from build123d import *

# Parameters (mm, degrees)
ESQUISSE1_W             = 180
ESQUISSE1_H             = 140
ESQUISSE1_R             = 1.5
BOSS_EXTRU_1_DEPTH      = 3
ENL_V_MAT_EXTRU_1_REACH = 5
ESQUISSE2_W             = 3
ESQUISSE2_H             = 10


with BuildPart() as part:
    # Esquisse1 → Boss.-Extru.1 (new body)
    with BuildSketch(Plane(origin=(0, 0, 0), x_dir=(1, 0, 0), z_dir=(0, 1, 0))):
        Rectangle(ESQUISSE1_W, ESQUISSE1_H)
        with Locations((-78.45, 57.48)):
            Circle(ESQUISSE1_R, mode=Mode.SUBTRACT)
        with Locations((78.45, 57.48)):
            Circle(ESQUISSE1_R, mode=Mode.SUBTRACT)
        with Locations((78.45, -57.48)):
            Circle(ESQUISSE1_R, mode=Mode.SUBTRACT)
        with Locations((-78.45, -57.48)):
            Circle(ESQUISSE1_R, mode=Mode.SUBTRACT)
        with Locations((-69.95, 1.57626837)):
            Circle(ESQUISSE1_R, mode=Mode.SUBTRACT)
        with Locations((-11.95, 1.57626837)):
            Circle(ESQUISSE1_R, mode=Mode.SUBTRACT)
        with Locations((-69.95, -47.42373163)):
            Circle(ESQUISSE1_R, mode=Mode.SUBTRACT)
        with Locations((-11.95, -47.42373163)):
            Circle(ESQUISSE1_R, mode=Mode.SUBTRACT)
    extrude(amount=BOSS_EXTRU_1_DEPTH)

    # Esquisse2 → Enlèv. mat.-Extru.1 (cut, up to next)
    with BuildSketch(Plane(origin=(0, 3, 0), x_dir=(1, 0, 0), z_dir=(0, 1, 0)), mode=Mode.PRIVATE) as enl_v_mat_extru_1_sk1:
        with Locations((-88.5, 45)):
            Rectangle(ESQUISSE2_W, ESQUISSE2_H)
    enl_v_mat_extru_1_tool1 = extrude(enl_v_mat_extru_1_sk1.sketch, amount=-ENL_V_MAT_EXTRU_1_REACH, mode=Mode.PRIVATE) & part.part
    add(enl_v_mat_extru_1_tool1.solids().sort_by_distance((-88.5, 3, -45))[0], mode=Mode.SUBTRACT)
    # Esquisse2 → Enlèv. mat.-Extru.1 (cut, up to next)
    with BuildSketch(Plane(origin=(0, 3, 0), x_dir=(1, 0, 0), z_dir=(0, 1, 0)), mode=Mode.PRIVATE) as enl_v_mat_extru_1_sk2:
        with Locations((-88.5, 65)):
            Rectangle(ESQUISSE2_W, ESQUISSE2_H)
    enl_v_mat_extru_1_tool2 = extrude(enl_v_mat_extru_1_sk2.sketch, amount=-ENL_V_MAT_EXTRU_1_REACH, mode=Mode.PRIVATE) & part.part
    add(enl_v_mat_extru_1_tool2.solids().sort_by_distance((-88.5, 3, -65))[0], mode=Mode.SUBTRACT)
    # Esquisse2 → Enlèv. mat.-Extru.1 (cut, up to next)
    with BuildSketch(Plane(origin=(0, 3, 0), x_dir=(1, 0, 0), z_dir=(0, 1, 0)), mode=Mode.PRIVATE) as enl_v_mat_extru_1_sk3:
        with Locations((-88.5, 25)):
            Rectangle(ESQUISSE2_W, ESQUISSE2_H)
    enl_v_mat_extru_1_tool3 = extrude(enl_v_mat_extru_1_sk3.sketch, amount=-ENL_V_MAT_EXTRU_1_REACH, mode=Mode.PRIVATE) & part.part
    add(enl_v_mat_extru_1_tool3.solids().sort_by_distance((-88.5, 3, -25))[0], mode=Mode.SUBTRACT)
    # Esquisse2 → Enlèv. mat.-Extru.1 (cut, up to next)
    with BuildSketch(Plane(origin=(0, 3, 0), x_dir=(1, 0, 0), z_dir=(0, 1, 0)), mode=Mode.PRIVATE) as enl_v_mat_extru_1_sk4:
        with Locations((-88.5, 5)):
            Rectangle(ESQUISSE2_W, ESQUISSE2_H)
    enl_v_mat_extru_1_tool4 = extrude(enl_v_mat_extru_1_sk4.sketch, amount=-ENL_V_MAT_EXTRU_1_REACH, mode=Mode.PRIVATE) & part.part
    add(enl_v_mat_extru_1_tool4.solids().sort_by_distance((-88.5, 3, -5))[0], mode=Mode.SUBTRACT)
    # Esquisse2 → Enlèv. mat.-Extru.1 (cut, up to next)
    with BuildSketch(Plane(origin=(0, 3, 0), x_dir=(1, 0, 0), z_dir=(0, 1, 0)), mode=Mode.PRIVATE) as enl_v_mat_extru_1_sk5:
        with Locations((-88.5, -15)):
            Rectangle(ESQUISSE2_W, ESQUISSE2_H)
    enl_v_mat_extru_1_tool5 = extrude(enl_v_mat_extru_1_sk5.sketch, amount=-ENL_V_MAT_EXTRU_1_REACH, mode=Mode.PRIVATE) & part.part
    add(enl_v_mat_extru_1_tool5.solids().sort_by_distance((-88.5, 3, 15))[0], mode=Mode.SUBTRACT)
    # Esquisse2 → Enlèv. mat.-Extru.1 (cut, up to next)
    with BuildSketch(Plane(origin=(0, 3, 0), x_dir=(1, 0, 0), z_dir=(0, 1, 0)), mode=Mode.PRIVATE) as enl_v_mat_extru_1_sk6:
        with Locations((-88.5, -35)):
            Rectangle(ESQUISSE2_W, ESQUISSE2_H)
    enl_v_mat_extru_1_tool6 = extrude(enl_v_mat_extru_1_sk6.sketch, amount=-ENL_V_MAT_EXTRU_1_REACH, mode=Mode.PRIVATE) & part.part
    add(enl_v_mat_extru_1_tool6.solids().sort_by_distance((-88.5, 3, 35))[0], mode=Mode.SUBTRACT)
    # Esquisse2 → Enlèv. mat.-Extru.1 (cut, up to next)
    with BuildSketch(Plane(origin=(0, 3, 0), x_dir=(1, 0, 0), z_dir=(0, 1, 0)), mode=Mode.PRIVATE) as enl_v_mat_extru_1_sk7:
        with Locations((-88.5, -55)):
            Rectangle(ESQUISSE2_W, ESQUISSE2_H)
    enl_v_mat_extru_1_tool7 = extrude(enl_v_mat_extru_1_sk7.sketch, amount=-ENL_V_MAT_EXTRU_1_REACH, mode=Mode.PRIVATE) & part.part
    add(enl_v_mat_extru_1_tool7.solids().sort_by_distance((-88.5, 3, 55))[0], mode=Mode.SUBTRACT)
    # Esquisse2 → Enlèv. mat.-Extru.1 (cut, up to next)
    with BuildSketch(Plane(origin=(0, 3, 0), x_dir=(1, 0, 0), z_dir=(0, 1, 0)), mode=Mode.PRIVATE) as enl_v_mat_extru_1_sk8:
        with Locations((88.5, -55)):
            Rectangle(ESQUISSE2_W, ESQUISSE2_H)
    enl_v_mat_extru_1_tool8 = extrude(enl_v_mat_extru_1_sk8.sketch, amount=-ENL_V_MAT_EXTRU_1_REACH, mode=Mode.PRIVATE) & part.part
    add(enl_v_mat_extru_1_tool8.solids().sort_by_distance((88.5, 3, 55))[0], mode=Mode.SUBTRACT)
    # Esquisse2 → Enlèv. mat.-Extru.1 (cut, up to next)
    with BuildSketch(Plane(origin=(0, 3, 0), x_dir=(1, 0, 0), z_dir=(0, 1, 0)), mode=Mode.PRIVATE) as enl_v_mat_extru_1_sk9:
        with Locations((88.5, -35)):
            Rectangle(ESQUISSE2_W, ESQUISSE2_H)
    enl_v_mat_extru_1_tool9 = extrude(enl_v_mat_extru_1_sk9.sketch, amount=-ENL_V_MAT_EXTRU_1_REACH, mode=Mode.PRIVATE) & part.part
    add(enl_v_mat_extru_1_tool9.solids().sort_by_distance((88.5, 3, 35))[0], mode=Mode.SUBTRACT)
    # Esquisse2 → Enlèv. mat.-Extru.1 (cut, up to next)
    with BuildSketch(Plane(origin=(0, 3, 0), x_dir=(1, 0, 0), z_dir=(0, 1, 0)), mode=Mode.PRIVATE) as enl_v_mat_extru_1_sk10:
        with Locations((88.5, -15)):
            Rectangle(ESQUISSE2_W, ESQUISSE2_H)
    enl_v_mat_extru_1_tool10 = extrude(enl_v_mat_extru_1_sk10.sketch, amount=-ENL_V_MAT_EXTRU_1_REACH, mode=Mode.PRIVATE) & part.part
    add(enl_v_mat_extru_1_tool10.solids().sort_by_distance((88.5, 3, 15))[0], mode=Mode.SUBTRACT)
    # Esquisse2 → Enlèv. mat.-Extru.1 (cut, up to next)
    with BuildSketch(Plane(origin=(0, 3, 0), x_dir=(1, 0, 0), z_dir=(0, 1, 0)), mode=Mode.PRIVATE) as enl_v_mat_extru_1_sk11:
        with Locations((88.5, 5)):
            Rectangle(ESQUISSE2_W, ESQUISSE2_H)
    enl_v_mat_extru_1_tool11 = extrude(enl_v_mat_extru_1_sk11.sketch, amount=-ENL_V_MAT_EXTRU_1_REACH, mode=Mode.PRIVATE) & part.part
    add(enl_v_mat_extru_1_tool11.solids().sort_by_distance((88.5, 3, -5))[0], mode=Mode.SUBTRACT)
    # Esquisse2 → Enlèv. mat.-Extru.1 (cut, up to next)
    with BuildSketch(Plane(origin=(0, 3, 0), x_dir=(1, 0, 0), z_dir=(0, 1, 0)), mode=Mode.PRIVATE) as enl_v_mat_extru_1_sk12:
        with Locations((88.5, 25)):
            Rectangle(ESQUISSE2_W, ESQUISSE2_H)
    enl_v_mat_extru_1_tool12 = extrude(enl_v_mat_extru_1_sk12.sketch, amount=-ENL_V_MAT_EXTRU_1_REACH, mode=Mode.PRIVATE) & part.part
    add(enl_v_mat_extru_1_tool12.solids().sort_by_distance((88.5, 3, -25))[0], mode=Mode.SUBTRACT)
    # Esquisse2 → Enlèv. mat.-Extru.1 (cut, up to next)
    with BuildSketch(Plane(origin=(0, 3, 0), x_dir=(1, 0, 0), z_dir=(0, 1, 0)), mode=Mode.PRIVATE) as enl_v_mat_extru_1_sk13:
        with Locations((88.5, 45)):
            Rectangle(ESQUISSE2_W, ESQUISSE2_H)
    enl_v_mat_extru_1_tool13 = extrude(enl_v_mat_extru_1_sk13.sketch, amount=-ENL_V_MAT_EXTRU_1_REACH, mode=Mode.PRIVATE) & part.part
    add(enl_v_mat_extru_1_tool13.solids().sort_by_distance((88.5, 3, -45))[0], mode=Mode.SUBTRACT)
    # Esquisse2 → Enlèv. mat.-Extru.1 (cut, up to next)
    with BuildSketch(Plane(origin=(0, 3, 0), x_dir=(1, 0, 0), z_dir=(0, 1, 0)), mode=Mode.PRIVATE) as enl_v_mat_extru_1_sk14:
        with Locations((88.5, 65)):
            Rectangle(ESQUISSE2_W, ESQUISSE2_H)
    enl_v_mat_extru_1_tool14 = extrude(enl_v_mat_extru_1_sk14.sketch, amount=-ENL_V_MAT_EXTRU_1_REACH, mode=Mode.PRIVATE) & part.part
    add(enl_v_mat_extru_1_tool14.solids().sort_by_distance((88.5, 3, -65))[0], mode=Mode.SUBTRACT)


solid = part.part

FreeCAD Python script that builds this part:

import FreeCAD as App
import Part
import Sketcher
from FreeCAD import Vector
Q = App.Units.Quantity

doc = App.newDocument("Part")
body = doc.addObject("PartDesign::Body", "Body")

sketch1 = body.newObject("Sketcher::SketchObject", "Sketch")
sketch1.AttachmentSupport = (doc.getObject("XZ_Plane"), [""])
sketch1.MapMode = "FlatFace"
sketch1.addGeometry([
    Part.LineSegment(Vector(-90, -70, 0), Vector(-90, 70, 0)),
    Part.LineSegment(Vector(-90, 70, 0), Vector(90, 70, 0)),
    Part.LineSegment(Vector(90, 70, 0), Vector(90, -70, 0)),
    Part.LineSegment(Vector(90, -70, 0), Vector(-90, -70, 0)),
    Part.Circle(Vector(-78.5, 57.5, 0), Vector(0, 0, 1), 1.5),
    Part.Circle(Vector(-70, 47.4, 0), Vector(0, 0, 1), 1.5),
    Part.Circle(Vector(-11.9, 47.4, 0), Vector(0, 0, 1), 1.5),
    Part.Circle(Vector(78.5, 57.5, 0), Vector(0, 0, 1), 1.5),
    Part.Circle(Vector(-70, -1.6, 0), Vector(0, 0, 1), 1.5),
    Part.Circle(Vector(-11.9, -1.6, 0), Vector(0, 0, 1), 1.5),
    Part.Circle(Vector(-78.5, -57.5, 0), Vector(0, 0, 1), 1.5),
    Part.Circle(Vector(78.5, -57.5, 0), Vector(0, 0, 1), 1.5),
], False)
sketch1.addConstraint([
    Sketcher.Constraint("Coincident", 0, 2, 1, 1),
    Sketcher.Constraint("Coincident", 1, 2, 2, 1),
    Sketcher.Constraint("Coincident", 2, 2, 3, 1),
    Sketcher.Constraint("Coincident", 3, 2, 0, 1),
    Sketcher.Constraint("Vertical", 0),
    Sketcher.Constraint("Horizontal", 1),
    Sketcher.Constraint("Vertical", 2),
    Sketcher.Constraint("Horizontal", 3),
    Sketcher.Constraint("Equal", 4, 5),
    Sketcher.Constraint("Equal", 5, 6),
    Sketcher.Constraint("Equal", 6, 7),
    Sketcher.Constraint("Equal", 7, 8),
    Sketcher.Constraint("Equal", 8, 9),
    Sketcher.Constraint("Equal", 9, 10),
    Sketcher.Constraint("Equal", 10, 11),
    Sketcher.Constraint("Symmetric", 7, 3, 10, 3, -1, 1),
    Sketcher.Constraint("Symmetric", 4, 3, 11, 3, -1, 1),
    Sketcher.Constraint("Symmetric", 0, 2, 2, 2, -1, 1),
    Sketcher.Constraint("Symmetric", 4, 3, 7, 3, -2),
    Sketcher.Constraint("Horizontal", 5, 3, 6, 3),
    Sketcher.Constraint("Horizontal", 8, 3, 9, 3),
    Sketcher.Constraint("Vertical", 5, 3, 8, 3),
    Sketcher.Constraint("Vertical", 6, 3, 9, 3),
    Sketcher.Constraint("Diameter", 4, Q("3 mm")),
    Sketcher.Constraint("DistanceX", 1, 1, 1, 2, Q("180 mm")),
    Sketcher.Constraint("DistanceY", 0, 1, 0, 2, Q("140 mm")),
    Sketcher.Constraint("DistanceX", 5, 3, 6, 3, Q("58 mm")),
    Sketcher.Constraint("DistanceY", 8, 3, 5, 3, Q("49 mm")),
    Sketcher.Constraint("DistanceX", 4, 3, 5, 3, Q("8.5 mm")),
    Sketcher.Constraint("DistanceX", 6, 3, 7, 3, Q("90.4 mm")),
    Sketcher.Constraint("DistanceY", -1, 1, 4, 3, Q("57.48 mm")),
    Sketcher.Constraint("DistanceY", -1, 1, 5, 3, Q("47.423732 mm")),
])
pad1 = body.newObject("PartDesign::Pad", "Pad")
pad1.Profile = sketch1
pad1.Length = 3
pad1.Reversed = True

sketch2 = body.newObject("Sketcher::SketchObject", "Sketch001")
sketch2.AttachmentSupport = (doc.getObject("XZ_Plane"), [""])
sketch2.MapMode = "FlatFace"
sketch2.AttachmentOffset = App.Placement(Vector(0, 0, -3), App.Rotation())
sketch2.addGeometry([
    Part.LineSegment(Vector(-90, -50, 0), Vector(-90, -40, 0)),
    Part.LineSegment(Vector(-90, -40, 0), Vector(-87, -40, 0)),
    Part.LineSegment(Vector(-87, -40, 0), Vector(-87, -50, 0)),
    Part.LineSegment(Vector(-87, -50, 0), Vector(-90, -50, 0)),
], False)
sketch2.addConstraint([
    Sketcher.Constraint("Coincident", 0, 2, 1, 1),
    Sketcher.Constraint("Coincident", 1, 2, 2, 1),
    Sketcher.Constraint("Coincident", 2, 2, 3, 1),
    Sketcher.Constraint("Coincident", 3, 2, 0, 1),
    Sketcher.Constraint("Vertical", 0),
    Sketcher.Constraint("Horizontal", 1),
    Sketcher.Constraint("Vertical", 2),
    Sketcher.Constraint("Horizontal", 3),
    Sketcher.Constraint("DistanceX", 1, 1, 1, 2, Q("3 mm")),
    Sketcher.Constraint("DistanceY", 0, 1, 0, 2, Q("10 mm")),
    Sketcher.Constraint("DistanceX", 0, 2, -1, 1, Q("90 mm")),
    Sketcher.Constraint("DistanceY", 0, 2, -1, 1, Q("40 mm")),
])
pocket1 = body.newObject("PartDesign::Pocket", "Pocket")
pocket1.Profile = sketch2
pocket1.Type = "UpToFirst"
pocket1.Reversed = True

sketch3 = body.newObject("Sketcher::SketchObject", "Sketch002")
sketch3.AttachmentSupport = (doc.getObject("XZ_Plane"), [""])
sketch3.MapMode = "FlatFace"
sketch3.AttachmentOffset = App.Placement(Vector(0, 0, -3), App.Rotation())
sketch3.addGeometry([
    Part.LineSegment(Vector(-90, -70, 0), Vector(-90, -60, 0)),
    Part.LineSegment(Vector(-90, -60, 0), Vector(-87, -60, 0)),
    Part.LineSegment(Vector(-87, -60, 0), Vector(-87, -70, 0)),
    Part.LineSegment(Vector(-87, -70, 0), Vector(-90, -70, 0)),
], False)
sketch3.addConstraint([
    Sketcher.Constraint("Coincident", 0, 2, 1, 1),
    Sketcher.Constraint("Coincident", 1, 2, 2, 1),
    Sketcher.Constraint("Coincident", 2, 2, 3, 1),
    Sketcher.Constraint("Coincident", 3, 2, 0, 1),
    Sketcher.Constraint("Vertical", 0),
    Sketcher.Constraint("Horizontal", 1),
    Sketcher.Constraint("Vertical", 2),
    Sketcher.Constraint("Horizontal", 3),
    Sketcher.Constraint("DistanceX", 1, 1, 1, 2, Q("3 mm")),
    Sketcher.Constraint("DistanceY", 0, 1, 0, 2, Q("10 mm")),
    Sketcher.Constraint("DistanceX", 0, 2, -1, 1, Q("90 mm")),
    Sketcher.Constraint("DistanceY", 0, 2, -1, 1, Q("60 mm")),
])
pocket2 = body.newObject("PartDesign::Pocket", "Pocket001")
pocket2.Profile = sketch3
pocket2.Type = "UpToFirst"
pocket2.Reversed = True

sketch4 = body.newObject("Sketcher::SketchObject", "Sketch003")
sketch4.AttachmentSupport = (doc.getObject("XZ_Plane"), [""])
sketch4.MapMode = "FlatFace"
sketch4.AttachmentOffset = App.Placement(Vector(0, 0, -3), App.Rotation())
sketch4.addGeometry([
    Part.LineSegment(Vector(-90, -30, 0), Vector(-90, -20, 0)),
    Part.LineSegment(Vector(-90, -20, 0), Vector(-87, -20, 0)),
    Part.LineSegment(Vector(-87, -20, 0), Vector(-87, -30, 0)),
    Part.LineSegment(Vector(-87, -30, 0), Vector(-90, -30, 0)),
], False)
sketch4.addConstraint([
    Sketcher.Constraint("Coincident", 0, 2, 1, 1),
    Sketcher.Constraint("Coincident", 1, 2, 2, 1),
    Sketcher.Constraint("Coincident", 2, 2, 3, 1),
    Sketcher.Constraint("Coincident", 3, 2, 0, 1),
    Sketcher.Constraint("Vertical", 0),
    Sketcher.Constraint("Horizontal", 1),
    Sketcher.Constraint("Vertical", 2),
    Sketcher.Constraint("Horizontal", 3),
    Sketcher.Constraint("DistanceX", 1, 1, 1, 2, Q("3 mm")),
    Sketcher.Constraint("DistanceY", 0, 1, 0, 2, Q("10 mm")),
    Sketcher.Constraint("DistanceX", 0, 2, -1, 1, Q("90 mm")),
    Sketcher.Constraint("DistanceY", 0, 2, -1, 1, Q("20 mm")),
])
pocket3 = body.newObject("PartDesign::Pocket", "Pocket002")
pocket3.Profile = sketch4
pocket3.Type = "UpToFirst"
pocket3.Reversed = True

sketch5 = body.newObject("Sketcher::SketchObject", "Sketch004")
sketch5.AttachmentSupport = (doc.getObject("XZ_Plane"), [""])
sketch5.MapMode = "FlatFace"
sketch5.AttachmentOffset = App.Placement(Vector(0, 0, -3), App.Rotation())
sketch5.addGeometry([
    Part.LineSegment(Vector(-90, -10, 0), Vector(-90, 0, 0)),
    Part.LineSegment(Vector(-90, 0, 0), Vector(-87, 0, 0)),
    Part.LineSegment(Vector(-87, 0, 0), Vector(-87, -10, 0)),
    Part.LineSegment(Vector(-87, -10, 0), Vector(-90, -10, 0)),
], False)
sketch5.addConstraint([
    Sketcher.Constraint("Coincident", 0, 2, 1, 1),
    Sketcher.Constraint("Coincident", 1, 2, 2, 1),
    Sketcher.Constraint("Coincident", 2, 2, 3, 1),
    Sketcher.Constraint("Coincident", 3, 2, 0, 1),
    Sketcher.Constraint("Vertical", 0),
    Sketcher.Constraint("Horizontal", 1),
    Sketcher.Constraint("Vertical", 2),
    Sketcher.Constraint("Horizontal", 3),
    Sketcher.Constraint("PointOnObject", 0, 2, -1),
    Sketcher.Constraint("DistanceX", 1, 1, 1, 2, Q("3 mm")),
    Sketcher.Constraint("DistanceY", 0, 1, 0, 2, Q("10 mm")),
    Sketcher.Constraint("DistanceX", 0, 2, -1, 1, Q("90 mm")),
])
pocket4 = body.newObject("PartDesign::Pocket", "Pocket003")
pocket4.Profile = sketch5
pocket4.Type = "UpToFirst"
pocket4.Reversed = True

sketch6 = body.newObject("Sketcher::SketchObject", "Sketch005")
sketch6.AttachmentSupport = (doc.getObject("XZ_Plane"), [""])
sketch6.MapMode = "FlatFace"
sketch6.AttachmentOffset = App.Placement(Vector(0, 0, -3), App.Rotation())
sketch6.addGeometry([
    Part.LineSegment(Vector(-90, 10, 0), Vector(-90, 20, 0)),
    Part.LineSegment(Vector(-90, 20, 0), Vector(-87, 20, 0)),
    Part.LineSegment(Vector(-87, 20, 0), Vector(-87, 10, 0)),
    Part.LineSegment(Vector(-87, 10, 0), Vector(-90, 10, 0)),
], False)
sketch6.addConstraint([
    Sketcher.Constraint("Coincident", 0, 2, 1, 1),
    Sketcher.Constraint("Coincident", 1, 2, 2, 1),
    Sketcher.Constraint("Coincident", 2, 2, 3, 1),
    Sketcher.Constraint("Coincident", 3, 2, 0, 1),
    Sketcher.Constraint("Vertical", 0),
    Sketcher.Constraint("Horizontal", 1),
    Sketcher.Constraint("Vertical", 2),
    Sketcher.Constraint("Horizontal", 3),
    Sketcher.Constraint("DistanceX", 1, 1, 1, 2, Q("3 mm")),
    Sketcher.Constraint("DistanceY", 0, 1, 0, 2, Q("10 mm")),
    Sketcher.Constraint("DistanceX", 0, 2, -1, 1, Q("90 mm")),
    Sketcher.Constraint("DistanceY", -1, 1, 0, 2, Q("20 mm")),
])
pocket5 = body.newObject("PartDesign::Pocket", "Pocket004")
pocket5.Profile = sketch6
pocket5.Type = "UpToFirst"
pocket5.Reversed = True

sketch7 = body.newObject("Sketcher::SketchObject", "Sketch006")
sketch7.AttachmentSupport = (doc.getObject("XZ_Plane"), [""])
sketch7.MapMode = "FlatFace"
sketch7.AttachmentOffset = App.Placement(Vector(0, 0, -3), App.Rotation())
sketch7.addGeometry([
    Part.LineSegment(Vector(-90, 30, 0), Vector(-90, 40, 0)),
    Part.LineSegment(Vector(-90, 40, 0), Vector(-87, 40, 0)),
    Part.LineSegment(Vector(-87, 40, 0), Vector(-87, 30, 0)),
    Part.LineSegment(Vector(-87, 30, 0), Vector(-90, 30, 0)),
], False)
sketch7.addConstraint([
    Sketcher.Constraint("Coincident", 0, 2, 1, 1),
    Sketcher.Constraint("Coincident", 1, 2, 2, 1),
    Sketcher.Constraint("Coincident", 2, 2, 3, 1),
    Sketcher.Constraint("Coincident", 3, 2, 0, 1),
    Sketcher.Constraint("Vertical", 0),
    Sketcher.Constraint("Horizontal", 1),
    Sketcher.Constraint("Vertical", 2),
    Sketcher.Constraint("Horizontal", 3),
    Sketcher.Constraint("DistanceX", 1, 1, 1, 2, Q("3 mm")),
    Sketcher.Constraint("DistanceY", 0, 1, 0, 2, Q("10 mm")),
    Sketcher.Constraint("DistanceX", 0, 2, -1, 1, Q("90 mm")),
    Sketcher.Constraint("DistanceY", -1, 1, 0, 2, Q("40 mm")),
])
pocket6 = body.newObject("PartDesign::Pocket", "Pocket005")
pocket6.Profile = sketch7
pocket6.Type = "UpToFirst"
pocket6.Reversed = True

sketch8 = body.newObject("Sketcher::SketchObject", "Sketch007")
sketch8.AttachmentSupport = (doc.getObject("XZ_Plane"), [""])
sketch8.MapMode = "FlatFace"
sketch8.AttachmentOffset = App.Placement(Vector(0, 0, -3), App.Rotation())
sketch8.addGeometry([
    Part.LineSegment(Vector(-90, 50, 0), Vector(-90, 60, 0)),
    Part.LineSegment(Vector(-90, 60, 0), Vector(-87, 60, 0)),
    Part.LineSegment(Vector(-87, 60, 0), Vector(-87, 50, 0)),
    Part.LineSegment(Vector(-87, 50, 0), Vector(-90, 50, 0)),
], False)
sketch8.addConstraint([
    Sketcher.Constraint("Coincident", 0, 2, 1, 1),
    Sketcher.Constraint("Coincident", 1, 2, 2, 1),
    Sketcher.Constraint("Coincident", 2, 2, 3, 1),
    Sketcher.Constraint("Coincident", 3, 2, 0, 1),
    Sketcher.Constraint("Vertical", 0),
    Sketcher.Constraint("Horizontal", 1),
    Sketcher.Constraint("Vertical", 2),
    Sketcher.Constraint("Horizontal", 3),
    Sketcher.Constraint("DistanceX", 1, 1, 1, 2, Q("3 mm")),
    Sketcher.Constraint("DistanceY", 0, 1, 0, 2, Q("10 mm")),
    Sketcher.Constraint("DistanceX", 0, 2, -1, 1, Q("90 mm")),
    Sketcher.Constraint("DistanceY", -1, 1, 0, 2, Q("60 mm")),
])
pocket7 = body.newObject("PartDesign::Pocket", "Pocket006")
pocket7.Profile = sketch8
pocket7.Type = "UpToFirst"
pocket7.Reversed = True

sketch9 = body.newObject("Sketcher::SketchObject", "Sketch008")
sketch9.AttachmentSupport = (doc.getObject("XZ_Plane"), [""])
sketch9.MapMode = "FlatFace"
sketch9.AttachmentOffset = App.Placement(Vector(0, 0, -3), App.Rotation())
sketch9.addGeometry([
    Part.LineSegment(Vector(87, 50, 0), Vector(87, 60, 0)),
    Part.LineSegment(Vector(87, 60, 0), Vector(90, 60, 0)),
    Part.LineSegment(Vector(90, 60, 0), Vector(90, 50, 0)),
    Part.LineSegment(Vector(90, 50, 0), Vector(87, 50, 0)),
], False)
sketch9.addConstraint([
    Sketcher.Constraint("Coincident", 0, 2, 1, 1),
    Sketcher.Constraint("Coincident", 1, 2, 2, 1),
    Sketcher.Constraint("Coincident", 2, 2, 3, 1),
    Sketcher.Constraint("Coincident", 3, 2, 0, 1),
    Sketcher.Constraint("Vertical", 0),
    Sketcher.Constraint("Horizontal", 1),
    Sketcher.Constraint("Vertical", 2),
    Sketcher.Constraint("Horizontal", 3),
    Sketcher.Constraint("DistanceX", 1, 1, 1, 2, Q("3 mm")),
    Sketcher.Constraint("DistanceY", 0, 1, 0, 2, Q("10 mm")),
    Sketcher.Constraint("DistanceX", -1, 1, 0, 2, Q("87 mm")),
    Sketcher.Constraint("DistanceY", -1, 1, 0, 2, Q("60 mm")),
])
pocket8 = body.newObject("PartDesign::Pocket", "Pocket007")
pocket8.Profile = sketch9
pocket8.Type = "UpToFirst"
pocket8.Reversed = True

sketch10 = body.newObject("Sketcher::SketchObject", "Sketch009")
sketch10.AttachmentSupport = (doc.getObject("XZ_Plane"), [""])
sketch10.MapMode = "FlatFace"
sketch10.AttachmentOffset = App.Placement(Vector(0, 0, -3), App.Rotation())
sketch10.addGeometry([
    Part.LineSegment(Vector(87, 30, 0), Vector(87, 40, 0)),
    Part.LineSegment(Vector(87, 40, 0), Vector(90, 40, 0)),
    Part.LineSegment(Vector(90, 40, 0), Vector(90, 30, 0)),
    Part.LineSegment(Vector(90, 30, 0), Vector(87, 30, 0)),
], False)
sketch10.addConstraint([
    Sketcher.Constraint("Coincident", 0, 2, 1, 1),
    Sketcher.Constraint("Coincident", 1, 2, 2, 1),
    Sketcher.Constraint("Coincident", 2, 2, 3, 1),
    Sketcher.Constraint("Coincident", 3, 2, 0, 1),
    Sketcher.Constraint("Vertical", 0),
    Sketcher.Constraint("Horizontal", 1),
    Sketcher.Constraint("Vertical", 2),
    Sketcher.Constraint("Horizontal", 3),
    Sketcher.Constraint("DistanceX", 1, 1, 1, 2, Q("3 mm")),
    Sketcher.Constraint("DistanceY", 0, 1, 0, 2, Q("10 mm")),
    Sketcher.Constraint("DistanceX", -1, 1, 0, 2, Q("87 mm")),
    Sketcher.Constraint("DistanceY", -1, 1, 0, 2, Q("40 mm")),
])
pocket9 = body.newObject("PartDesign::Pocket", "Pocket008")
pocket9.Profile = sketch10
pocket9.Type = "UpToFirst"
pocket9.Reversed = True

sketch11 = body.newObject("Sketcher::SketchObject", "Sketch010")
sketch11.AttachmentSupport = (doc.getObject("XZ_Plane"), [""])
sketch11.MapMode = "FlatFace"
sketch11.AttachmentOffset = App.Placement(Vector(0, 0, -3), App.Rotation())
sketch11.addGeometry([
    Part.LineSegment(Vector(87, 10, 0), Vector(87, 20, 0)),
    Part.LineSegment(Vector(87, 20, 0), Vector(90, 20, 0)),
    Part.LineSegment(Vector(90, 20, 0), Vector(90, 10, 0)),
    Part.LineSegment(Vector(90, 10, 0), Vector(87, 10, 0)),
], False)
sketch11.addConstraint([
    Sketcher.Constraint("Coincident", 0, 2, 1, 1),
    Sketcher.Constraint("Coincident", 1, 2, 2, 1),
    Sketcher.Constraint("Coincident", 2, 2, 3, 1),
    Sketcher.Constraint("Coincident", 3, 2, 0, 1),
    Sketcher.Constraint("Vertical", 0),
    Sketcher.Constraint("Horizontal", 1),
    Sketcher.Constraint("Vertical", 2),
    Sketcher.Constraint("Horizontal", 3),
    Sketcher.Constraint("DistanceX", 1, 1, 1, 2, Q("3 mm")),
    Sketcher.Constraint("DistanceY", 0, 1, 0, 2, Q("10 mm")),
    Sketcher.Constraint("DistanceX", -1, 1, 0, 2, Q("87 mm")),
    Sketcher.Constraint("DistanceY", -1, 1, 0, 2, Q("20 mm")),
])
pocket10 = body.newObject("PartDesign::Pocket", "Pocket009")
pocket10.Profile = sketch11
pocket10.Type = "UpToFirst"
pocket10.Reversed = True

sketch12 = body.newObject("Sketcher::SketchObject", "Sketch011")
sketch12.AttachmentSupport = (doc.getObject("XZ_Plane"), [""])
sketch12.MapMode = "FlatFace"
sketch12.AttachmentOffset = App.Placement(Vector(0, 0, -3), App.Rotation())
sketch12.addGeometry([
    Part.LineSegment(Vector(87, -10, 0), Vector(87, 0, 0)),
    Part.LineSegment(Vector(87, 0, 0), Vector(90, 0, 0)),
    Part.LineSegment(Vector(90, 0, 0), Vector(90, -10, 0)),
    Part.LineSegment(Vector(90, -10, 0), Vector(87, -10, 0)),
], False)
sketch12.addConstraint([
    Sketcher.Constraint("Coincident", 0, 2, 1, 1),
    Sketcher.Constraint("Coincident", 1, 2, 2, 1),
    Sketcher.Constraint("Coincident", 2, 2, 3, 1),
    Sketcher.Constraint("Coincident", 3, 2, 0, 1),
    Sketcher.Constraint("Vertical", 0),
    Sketcher.Constraint("Horizontal", 1),
    Sketcher.Constraint("Vertical", 2),
    Sketcher.Constraint("Horizontal", 3),
    Sketcher.Constraint("PointOnObject", 0, 2, -1),
    Sketcher.Constraint("DistanceX", 1, 1, 1, 2, Q("3 mm")),
    Sketcher.Constraint("DistanceY", 0, 1, 0, 2, Q("10 mm")),
    Sketcher.Constraint("DistanceX", -1, 1, 0, 2, Q("87 mm")),
])
pocket11 = body.newObject("PartDesign::Pocket", "Pocket010")
pocket11.Profile = sketch12
pocket11.Type = "UpToFirst"
pocket11.Reversed = True

sketch13 = body.newObject("Sketcher::SketchObject", "Sketch012")
sketch13.AttachmentSupport = (doc.getObject("XZ_Plane"), [""])
sketch13.MapMode = "FlatFace"
sketch13.AttachmentOffset = App.Placement(Vector(0, 0, -3), App.Rotation())
sketch13.addGeometry([
    Part.LineSegment(Vector(87, -30, 0), Vector(87, -20, 0)),
    Part.LineSegment(Vector(87, -20, 0), Vector(90, -20, 0)),
    Part.LineSegment(Vector(90, -20, 0), Vector(90, -30, 0)),
    Part.LineSegment(Vector(90, -30, 0), Vector(87, -30, 0)),
], False)
sketch13.addConstraint([
    Sketcher.Constraint("Coincident", 0, 2, 1, 1),
    Sketcher.Constraint("Coincident", 1, 2, 2, 1),
    Sketcher.Constraint("Coincident", 2, 2, 3, 1),
    Sketcher.Constraint("Coincident", 3, 2, 0, 1),
    Sketcher.Constraint("Vertical", 0),
    Sketcher.Constraint("Horizontal", 1),
    Sketcher.Constraint("Vertical", 2),
    Sketcher.Constraint("Horizontal", 3),
    Sketcher.Constraint("DistanceX", 1, 1, 1, 2, Q("3 mm")),
    Sketcher.Constraint("DistanceY", 0, 1, 0, 2, Q("10 mm")),
    Sketcher.Constraint("DistanceX", -1, 1, 0, 2, Q("87 mm")),
    Sketcher.Constraint("DistanceY", 0, 2, -1, 1, Q("20 mm")),
])
pocket12 = body.newObject("PartDesign::Pocket", "Pocket011")
pocket12.Profile = sketch13
pocket12.Type = "UpToFirst"
pocket12.Reversed = True

sketch14 = body.newObject("Sketcher::SketchObject", "Sketch013")
sketch14.AttachmentSupport = (doc.getObject("XZ_Plane"), [""])
sketch14.MapMode = "FlatFace"
sketch14.AttachmentOffset = App.Placement(Vector(0, 0, -3), App.Rotation())
sketch14.addGeometry([
    Part.LineSegment(Vector(87, -50, 0), Vector(87, -40, 0)),
    Part.LineSegment(Vector(87, -40, 0), Vector(90, -40, 0)),
    Part.LineSegment(Vector(90, -40, 0), Vector(90, -50, 0)),
    Part.LineSegment(Vector(90, -50, 0), Vector(87, -50, 0)),
], False)
sketch14.addConstraint([
    Sketcher.Constraint("Coincident", 0, 2, 1, 1),
    Sketcher.Constraint("Coincident", 1, 2, 2, 1),
    Sketcher.Constraint("Coincident", 2, 2, 3, 1),
    Sketcher.Constraint("Coincident", 3, 2, 0, 1),
    Sketcher.Constraint("Vertical", 0),
    Sketcher.Constraint("Horizontal", 1),
    Sketcher.Constraint("Vertical", 2),
    Sketcher.Constraint("Horizontal", 3),
    Sketcher.Constraint("DistanceX", 1, 1, 1, 2, Q("3 mm")),
    Sketcher.Constraint("DistanceY", 0, 1, 0, 2, Q("10 mm")),
    Sketcher.Constraint("DistanceX", -1, 1, 0, 2, Q("87 mm")),
    Sketcher.Constraint("DistanceY", 0, 2, -1, 1, Q("40 mm")),
])
pocket13 = body.newObject("PartDesign::Pocket", "Pocket012")
pocket13.Profile = sketch14
pocket13.Type = "UpToFirst"
pocket13.Reversed = True

sketch15 = body.newObject("Sketcher::SketchObject", "Sketch014")
sketch15.AttachmentSupport = (doc.getObject("XZ_Plane"), [""])
sketch15.MapMode = "FlatFace"
sketch15.AttachmentOffset = App.Placement(Vector(0, 0, -3), App.Rotation())
sketch15.addGeometry([
    Part.LineSegment(Vector(87, -70, 0), Vector(87, -60, 0)),
    Part.LineSegment(Vector(87, -60, 0), Vector(90, -60, 0)),
    Part.LineSegment(Vector(90, -60, 0), Vector(90, -70, 0)),
    Part.LineSegment(Vector(90, -70, 0), Vector(87, -70, 0)),
], False)
sketch15.addConstraint([
    Sketcher.Constraint("Coincident", 0, 2, 1, 1),
    Sketcher.Constraint("Coincident", 1, 2, 2, 1),
    Sketcher.Constraint("Coincident", 2, 2, 3, 1),
    Sketcher.Constraint("Coincident", 3, 2, 0, 1),
    Sketcher.Constraint("Vertical", 0),
    Sketcher.Constraint("Horizontal", 1),
    Sketcher.Constraint("Vertical", 2),
    Sketcher.Constraint("Horizontal", 3),
    Sketcher.Constraint("DistanceX", 1, 1, 1, 2, Q("3 mm")),
    Sketcher.Constraint("DistanceY", 0, 1, 0, 2, Q("10 mm")),
    Sketcher.Constraint("DistanceX", -1, 1, 0, 2, Q("87 mm")),
    Sketcher.Constraint("DistanceY", 0, 2, -1, 1, Q("60 mm")),
])
pocket14 = body.newObject("PartDesign::Pocket", "Pocket013")
pocket14.Profile = sketch15
pocket14.Type = "UpToFirst"
pocket14.Reversed = True

doc.recompute()
